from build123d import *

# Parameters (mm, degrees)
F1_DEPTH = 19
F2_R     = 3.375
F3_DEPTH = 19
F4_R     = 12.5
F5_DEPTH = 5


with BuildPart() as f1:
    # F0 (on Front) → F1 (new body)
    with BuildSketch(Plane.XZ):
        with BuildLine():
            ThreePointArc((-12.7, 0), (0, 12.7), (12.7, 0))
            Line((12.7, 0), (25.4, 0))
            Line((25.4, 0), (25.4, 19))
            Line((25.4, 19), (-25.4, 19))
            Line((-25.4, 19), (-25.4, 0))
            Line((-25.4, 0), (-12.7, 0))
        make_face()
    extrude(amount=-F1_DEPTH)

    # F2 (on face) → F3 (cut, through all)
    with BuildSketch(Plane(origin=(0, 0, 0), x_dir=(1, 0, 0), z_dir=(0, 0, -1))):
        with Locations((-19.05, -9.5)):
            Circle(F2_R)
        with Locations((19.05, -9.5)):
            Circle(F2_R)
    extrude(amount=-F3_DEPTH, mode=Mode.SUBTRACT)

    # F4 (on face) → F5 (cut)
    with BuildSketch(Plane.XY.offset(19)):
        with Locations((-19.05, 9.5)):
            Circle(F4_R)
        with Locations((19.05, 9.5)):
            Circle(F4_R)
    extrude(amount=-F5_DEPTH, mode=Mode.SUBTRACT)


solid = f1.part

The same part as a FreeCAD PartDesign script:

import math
import FreeCAD as App
import Part
import Sketcher
Q = App.Units.Quantity

doc = App.newDocument("Part")
body = doc.addObject("PartDesign::Body", "Body")

sketch1 = body.newObject("Sketcher::SketchObject", "Sketch")
sketch1.AttachmentSupport = (doc.getObject("XZ_Plane"), [""])
sketch1.MapMode = "FlatFace"
sketch1.addGeometry([
    Part.ArcOfCircle(Part.Circle(App.Vector(0, 0, 0), App.Vector(0, 0, 1), 13), math.radians(0), math.radians(180)),
    Part.LineSegment(App.Vector(13, 0, 0), App.Vector(25, 0, 0)),
    Part.LineSegment(App.Vector(25, 0, 0), App.Vector(25, 19, 0)),
    Part.LineSegment(App.Vector(25, 19, 0), App.Vector(-25, 19, 0)),
    Part.LineSegment(App.Vector(-25, 19, 0), App.Vector(-25, 0, 0)),
    Part.LineSegment(App.Vector(-25, 0, 0), App.Vector(-13, 0, 0)),
], False)
sketch1.addConstraint([
    Sketcher.Constraint("Coincident", 0, 1, 1, 1),
    Sketcher.Constraint("Coincident", 1, 2, 2, 1),
    Sketcher.Constraint("Coincident", 2, 2, 3, 1),
    Sketcher.Constraint("Coincident", 3, 2, 4, 1),
    Sketcher.Constraint("Coincident", 4, 2, 5, 1),
    Sketcher.Constraint("Coincident", 5, 2, 0, 2),
    Sketcher.Constraint("Horizontal", 1),
    Sketcher.Constraint("Vertical", 2),
    Sketcher.Constraint("Horizontal", 3),
    Sketcher.Constraint("Vertical", 4),
    Sketcher.Constraint("Horizontal", 5),
    Sketcher.Constraint("Coincident", 0, 3, -1, 1),
    Sketcher.Constraint("Symmetric", 1, 2, 4, 2, -1, 1),
    Sketcher.Constraint("PointOnObject", 0, 1, -1),
    Sketcher.Constraint("Radius", 0, Q("12.7 mm")),
    Sketcher.Constraint("DistanceY", 2, 1, 2, 2, Q("19 mm")),
    Sketcher.Constraint("DistanceX", 1, 1, 1, 2, Q("12.7 mm")),
])
pad1 = body.newObject("PartDesign::Pad", "Pad")
pad1.Profile = sketch1
pad1.Length = 19
pad1.Reversed = True

sketch2 = body.newObject("Sketcher::SketchObject", "Sketch001")
sketch2.AttachmentSupport = (doc.getObject("XY_Plane"), [""])
sketch2.MapMode = "FlatFace"
sketch2.addGeometry([
    Part.Circle(App.Vector(-19.1, 9.5, 0), App.Vector(0, 0, 1), 3.4),
    Part.Circle(App.Vector(19.1, 9.5, 0), App.Vector(0, 0, 1), 3.4),
], False)
sketch2.addConstraint([
    Sketcher.Constraint("Equal", 0, 1),
    Sketcher.Constraint("Symmetric", 0, 3, 1, 3, -2),
    Sketcher.Constraint("Diameter", 0, Q("6.75 mm")),
    Sketcher.Constraint("DistanceY", -1, 1, 0, 3, Q("9.5 mm")),
    Sketcher.Constraint("DistanceX", 0, 3, 1, 3, Q("38.1 mm")),
])
pocket1 = body.newObject("PartDesign::Pocket", "Pocket")
pocket1.Profile = sketch2
pocket1.Type = "ThroughAll"
pocket1.Reversed = True

sketch3 = body.newObject("Sketcher::SketchObject", "Sketch002")
sketch3.AttachmentSupport = (doc.getObject("XY_Plane"), [""])
sketch3.MapMode = "FlatFace"
sketch3.AttachmentOffset = App.Placement(App.Vector(0, 0, 19), App.Rotation())
sketch3.addGeometry([
    Part.Circle(App.Vector(-19, 10, 0), App.Vector(0, 0, 1), 12),
    Part.Circle(App.Vector(19, 10, 0), App.Vector(0, 0, 1), 12),
], False)
sketch3.addConstraint([
    Sketcher.Constraint("Equal", 0, 1),
    Sketcher.Constraint("Symmetric", 0, 3, 1, 3, -2),
    Sketcher.Constraint("Diameter", 0, Q("25 mm")),
    Sketcher.Constraint("DistanceY", -1, 1, 0, 3, Q("9.5 mm")),
    Sketcher.Constraint("DistanceX", 0, 3, 1, 3, Q("38.1 mm")),
])
pocket2 = body.newObject("PartDesign::Pocket", "Pocket001")
pocket2.Profile = sketch3
pocket2.Length = 5

doc.recompute()
